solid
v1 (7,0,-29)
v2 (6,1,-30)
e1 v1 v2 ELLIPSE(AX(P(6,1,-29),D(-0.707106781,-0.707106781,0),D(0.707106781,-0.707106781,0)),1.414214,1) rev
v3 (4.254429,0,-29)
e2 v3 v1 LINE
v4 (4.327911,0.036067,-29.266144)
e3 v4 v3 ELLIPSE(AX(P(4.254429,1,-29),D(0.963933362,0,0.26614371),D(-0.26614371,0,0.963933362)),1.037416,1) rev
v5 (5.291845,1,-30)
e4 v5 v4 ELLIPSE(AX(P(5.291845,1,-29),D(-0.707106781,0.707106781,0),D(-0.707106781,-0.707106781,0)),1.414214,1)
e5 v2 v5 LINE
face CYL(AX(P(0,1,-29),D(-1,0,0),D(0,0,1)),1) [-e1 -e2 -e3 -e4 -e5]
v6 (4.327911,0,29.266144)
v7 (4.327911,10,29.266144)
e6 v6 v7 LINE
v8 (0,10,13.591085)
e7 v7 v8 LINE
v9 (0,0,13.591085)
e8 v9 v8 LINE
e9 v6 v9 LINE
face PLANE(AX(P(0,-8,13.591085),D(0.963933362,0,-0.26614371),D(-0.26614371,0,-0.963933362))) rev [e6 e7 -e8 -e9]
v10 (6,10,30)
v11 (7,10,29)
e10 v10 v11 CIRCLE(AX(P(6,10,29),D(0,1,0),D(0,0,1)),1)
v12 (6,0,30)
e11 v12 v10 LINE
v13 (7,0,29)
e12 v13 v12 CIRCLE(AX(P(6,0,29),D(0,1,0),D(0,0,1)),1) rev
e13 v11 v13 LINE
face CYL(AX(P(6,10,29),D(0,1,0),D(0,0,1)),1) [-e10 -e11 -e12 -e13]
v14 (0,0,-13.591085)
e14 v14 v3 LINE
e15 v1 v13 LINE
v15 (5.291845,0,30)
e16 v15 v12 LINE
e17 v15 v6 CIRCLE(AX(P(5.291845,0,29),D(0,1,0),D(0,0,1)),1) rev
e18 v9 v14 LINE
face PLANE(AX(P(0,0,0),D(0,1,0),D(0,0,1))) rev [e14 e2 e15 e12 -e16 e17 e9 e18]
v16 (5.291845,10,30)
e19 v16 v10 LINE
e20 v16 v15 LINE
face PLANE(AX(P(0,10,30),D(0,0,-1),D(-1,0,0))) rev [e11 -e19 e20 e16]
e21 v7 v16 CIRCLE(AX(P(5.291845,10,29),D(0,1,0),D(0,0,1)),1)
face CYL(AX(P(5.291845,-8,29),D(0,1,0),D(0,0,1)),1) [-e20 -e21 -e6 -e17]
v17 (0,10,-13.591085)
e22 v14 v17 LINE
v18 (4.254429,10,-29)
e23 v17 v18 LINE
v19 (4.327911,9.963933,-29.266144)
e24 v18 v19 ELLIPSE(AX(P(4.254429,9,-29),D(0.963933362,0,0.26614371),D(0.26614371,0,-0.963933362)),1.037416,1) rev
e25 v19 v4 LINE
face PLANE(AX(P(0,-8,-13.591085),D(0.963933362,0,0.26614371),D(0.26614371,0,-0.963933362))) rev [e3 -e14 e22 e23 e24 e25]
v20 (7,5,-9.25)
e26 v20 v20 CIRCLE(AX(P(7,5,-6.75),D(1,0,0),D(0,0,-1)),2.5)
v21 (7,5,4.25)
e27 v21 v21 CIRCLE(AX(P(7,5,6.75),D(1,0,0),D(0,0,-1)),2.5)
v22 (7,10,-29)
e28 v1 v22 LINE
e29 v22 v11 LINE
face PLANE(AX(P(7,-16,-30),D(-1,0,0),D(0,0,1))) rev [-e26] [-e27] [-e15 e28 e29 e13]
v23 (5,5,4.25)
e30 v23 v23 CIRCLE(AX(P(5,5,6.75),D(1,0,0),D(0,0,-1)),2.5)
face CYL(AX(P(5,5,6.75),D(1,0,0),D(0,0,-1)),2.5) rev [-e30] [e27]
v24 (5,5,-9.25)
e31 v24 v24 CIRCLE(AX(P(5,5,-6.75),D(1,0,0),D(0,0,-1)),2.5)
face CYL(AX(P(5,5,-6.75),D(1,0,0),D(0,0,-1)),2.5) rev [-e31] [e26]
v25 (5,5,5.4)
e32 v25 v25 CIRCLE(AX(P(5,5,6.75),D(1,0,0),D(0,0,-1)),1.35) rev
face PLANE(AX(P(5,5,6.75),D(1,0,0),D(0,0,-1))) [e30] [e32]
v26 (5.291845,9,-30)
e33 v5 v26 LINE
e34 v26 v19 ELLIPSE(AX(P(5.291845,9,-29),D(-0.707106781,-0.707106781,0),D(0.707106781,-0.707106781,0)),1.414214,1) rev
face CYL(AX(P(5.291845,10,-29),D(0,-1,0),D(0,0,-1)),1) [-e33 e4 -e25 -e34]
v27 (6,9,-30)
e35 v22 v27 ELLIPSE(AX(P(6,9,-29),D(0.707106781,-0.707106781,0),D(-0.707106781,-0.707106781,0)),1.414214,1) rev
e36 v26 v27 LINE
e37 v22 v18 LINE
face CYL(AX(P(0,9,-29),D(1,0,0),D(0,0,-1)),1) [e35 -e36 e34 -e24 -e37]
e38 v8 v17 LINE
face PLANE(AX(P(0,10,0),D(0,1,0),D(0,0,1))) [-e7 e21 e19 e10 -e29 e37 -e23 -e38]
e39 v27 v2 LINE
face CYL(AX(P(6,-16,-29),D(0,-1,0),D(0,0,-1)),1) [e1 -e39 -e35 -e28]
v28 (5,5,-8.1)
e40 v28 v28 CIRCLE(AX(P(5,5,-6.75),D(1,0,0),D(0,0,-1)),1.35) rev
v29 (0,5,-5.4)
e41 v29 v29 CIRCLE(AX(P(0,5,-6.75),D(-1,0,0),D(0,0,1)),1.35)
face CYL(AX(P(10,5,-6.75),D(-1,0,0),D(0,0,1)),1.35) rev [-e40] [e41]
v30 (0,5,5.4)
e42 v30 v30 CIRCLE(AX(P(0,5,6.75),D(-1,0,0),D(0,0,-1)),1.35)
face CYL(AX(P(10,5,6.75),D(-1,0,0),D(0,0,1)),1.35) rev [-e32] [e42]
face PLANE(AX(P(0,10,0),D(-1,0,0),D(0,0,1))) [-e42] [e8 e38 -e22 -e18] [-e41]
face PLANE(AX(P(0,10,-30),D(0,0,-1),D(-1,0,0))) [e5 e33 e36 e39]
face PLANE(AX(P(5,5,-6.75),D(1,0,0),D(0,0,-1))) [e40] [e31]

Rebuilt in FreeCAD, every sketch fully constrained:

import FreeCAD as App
import Part
import Sketcher

V = App.Vector


def edges_at(feature, points):
    """Names of the edges that pass closest to the given points."""
    edges = feature.Shape.Edges
    near = lambda p: min(range(len(edges)), key=lambda i: edges[i].distToShape(Part.Vertex(*p))[0])
    return sorted({f"Edge{near(p) + 1}" for p in points})

doc = App.newDocument("Part")
params = doc.addObject("Spreadsheet::Sheet", "Params")
for row, (alias, value) in enumerate([
    ("sketch1_height", "60 mm"),
    ("pad1_length", "10 mm"),
    ("sketch2_diameter", "2.7 mm"),
    ("pocket1_length", "10 mm"),
    ("pocket2_length", "18 mm"),
    ("pocket3_length", "26 mm"),
    ("sketch5_height", "60 mm"),
    ("pocket4_length", "26 mm"),
    ("fillet_radius", "1 mm"),
    ("sketch6_diameter", "5 mm"),
    ("pocket5_length", "2 mm"),
], start=1):
    params.set(f"A{row}", alias)
    params.set(f"B{row}", "=" + value)
    params.setAlias(f"B{row}", alias)

body = doc.addObject("PartDesign::Body", "Body")

# Sketch on XZ plane
sketch1 = body.newObject("Sketcher::SketchObject", "Sketch")
sketch1.AttachmentSupport = (doc.getObject("XZ_Plane"), [""])
sketch1.MapMode = "FlatFace"
sketch1.addGeometry(Part.LineSegment(V(0, -30, 0), V(0, 30, 0)), False)
sketch1.addGeometry(Part.LineSegment(V(0, 30, 0), V(34, 30, 0)), False)
sketch1.addGeometry(Part.LineSegment(V(34, 30, 0), V(34, -30, 0)), False)
sketch1.addGeometry(Part.LineSegment(V(34, -30, 0), V(0, -30, 0)), False)
sketch1.addConstraint(Sketcher.Constraint("Coincident", 0, 2, 1, 1))
sketch1.addConstraint(Sketcher.Constraint("Coincident", 1, 2, 2, 1))
sketch1.addConstraint(Sketcher.Constraint("Coincident", 2, 2, 3, 1))
sketch1.addConstraint(Sketcher.Constraint("Coincident", 3, 2, 0, 1))
sketch1.addConstraint(Sketcher.Constraint("Vertical", 0))
sketch1.addConstraint(Sketcher.Constraint("Horizontal", 1))
sketch1.addConstraint(Sketcher.Constraint("Vertical", 2))
sketch1.addConstraint(Sketcher.Constraint("Horizontal", 3))
sketch1.addConstraint(Sketcher.Constraint("Symmetric", 0, 2, 3, 2, -1, 1))
sketch1.addConstraint(Sketcher.Constraint("DistanceY", 0, 1, 0, 2, 60.0))
sketch1.addConstraint(Sketcher.Constraint("DistanceX", 1, 1, 1, 2, 33.537053))
sketch1.setExpression("Constraints[9]", "Params.sketch1_height")
pad1 = body.newObject("PartDesign::Pad", "Pad")
pad1.Profile = sketch1
pad1.setExpression("Length", "Params.pad1_length")
pad1.Reversed = True

# Sketch on YZ plane
sketch2 = body.newObject("Sketcher::SketchObject", "Sketch001")
sketch2.AttachmentSupport = (doc.getObject("YZ_Plane"), [""])
sketch2.MapMode = "FlatFace"
sketch2.addGeometry(Part.Circle(V(5, -6.8, 0), V(0, 0, 1), 1.4), False)
sketch2.addGeometry(Part.Circle(V(5, 6.8, 0), V(0, 0, 1), 1.4), False)
sketch2.addConstraint(Sketcher.Constraint("Equal", 0, 1))
sketch2.addConstraint(Sketcher.Constraint("Symmetric", 0, 3, 1, 3, -1))
sketch2.addConstraint(Sketcher.Constraint("Diameter", 0, 2.7))
sketch2.addConstraint(Sketcher.Constraint("DistanceX", -1, 1, 0, 3, 5.0))
sketch2.addConstraint(Sketcher.Constraint("DistanceY", 0, 3, 1, 3, 13.5))
sketch2.setExpression("Constraints[2]", "Params.sketch2_diameter")
pocket1 = body.newObject("PartDesign::Pocket", "Pocket")
pocket1.Profile = sketch2
pocket1.setExpression("Length", "Params.pocket1_length")
pocket1.Reversed = True

# Sketch on XZ plane
sketch3 = body.newObject("Sketcher::SketchObject", "Sketch002")
sketch3.AttachmentSupport = (doc.getObject("XZ_Plane"), [""])
sketch3.MapMode = "FlatFace"
sketch3.AttachmentOffset = App.Placement(V(0, 0, -10), App.Rotation())
sketch3.addGeometry(Part.LineSegment(V(0, -13.6, 0), V(4.5, -30, 0)), False)
sketch3.addGeometry(Part.LineSegment(V(4.5, -30, 0), V(0, -30, 0)), False)
sketch3.addGeometry(Part.LineSegment(V(0, -30, 0), V(0, -13.6, 0)), False)
sketch3.addGeometry(Part.LineSegment(V(0, 30, 0), V(4.5, 30, 0)), False)
sketch3.addGeometry(Part.LineSegment(V(4.5, 30, 0), V(0, 13.6, 0)), False)
sketch3.addGeometry(Part.LineSegment(V(0, 13.6, 0), V(0, 30, 0)), False)
sketch3.addConstraint(Sketcher.Constraint("Coincident", 0, 2, 1, 1))
sketch3.addConstraint(Sketcher.Constraint("Coincident", 1, 2, 2, 1))
sketch3.addConstraint(Sketcher.Constraint("Coincident", 2, 2, 0, 1))
sketch3.addConstraint(Sketcher.Constraint("Coincident", 3, 2, 4, 1))
sketch3.addConstraint(Sketcher.Constraint("Coincident", 4, 2, 5, 1))
sketch3.addConstraint(Sketcher.Constraint("Coincident", 5, 2, 3, 1))
sketch3.addConstraint(Sketcher.Constraint("Horizontal", 1))
sketch3.addConstraint(Sketcher.Constraint("Vertical", 2))
sketch3.addConstraint(Sketcher.Constraint("Horizontal", 3))
sketch3.addConstraint(Sketcher.Constraint("Vertical", 5))
sketch3.addConstraint(Sketcher.Constraint("Symmetric", 2, 2, 4, 2, -1, 1))
sketch3.addConstraint(Sketcher.Constraint("Symmetric", 0, 2, 3, 2, -1))
sketch3.addConstraint(Sketcher.Constraint("PointOnObject", 1, 2, -2))
sketch3.addConstraint(Sketcher.Constraint("DistanceY", 0, 2, -1, 1, 30.0))
sketch3.addConstraint(Sketcher.Constraint("DistanceX", 1, 2, 1, 1, 4.53053))
sketch3.addConstraint(Sketcher.Constraint("DistanceY", 2, 1, 2, 2, 16.408915))
pocket2 = body.newObject("PartDesign::Pocket", "Pocket001")
pocket2.Profile = sketch3
pocket2.setExpression("Length", "Params.pocket2_length")
pocket2.Reversed = True

# Sketch on XZ plane
sketch4 = body.newObject("Sketcher::SketchObject", "Sketch003")
sketch4.AttachmentSupport = (doc.getObject("XZ_Plane"), [""])
sketch4.MapMode = "FlatFace"
sketch4.AttachmentOffset = App.Placement(V(0, 0, -10), App.Rotation())
sketch4.addGeometry(Part.LineSegment(V(13, -31, 0), V(13, 33, 0)), False)
sketch4.addGeometry(Part.LineSegment(V(13, 33, 0), V(34, 33, 0)), False)
sketch4.addGeometry(Part.LineSegment(V(34, 33, 0), V(34, -31, 0)), False)
sketch4.addGeometry(Part.LineSegment(V(34, -31, 0), V(13, -31, 0)), False)
sketch4.addConstraint(Sketcher.Constraint("Coincident", 0, 2, 1, 1))
sketch4.addConstraint(Sketcher.Constraint("Coincident", 1, 2, 2, 1))
sketch4.addConstraint(Sketcher.Constraint("Coincident", 2, 2, 3, 1))
sketch4.addConstraint(Sketcher.Constraint("Coincident", 3, 2, 0, 1))
sketch4.addConstraint(Sketcher.Constraint("Vertical", 0))
sketch4.addConstraint(Sketcher.Constraint("Horizontal", 1))
sketch4.addConstraint(Sketcher.Constraint("Vertical", 2))
sketch4.addConstraint(Sketcher.Constraint("Horizontal", 3))
sketch4.addConstraint(Sketcher.Constraint("DistanceX", 1, 1, 1, 2, 20.892081))
sketch4.addConstraint(Sketcher.Constraint("DistanceX", -1, 1, 1, 2, 34.092899))
sketch4.addConstraint(Sketcher.Constraint("DistanceY", 0, 1, 0, 2, 64.192604))
sketch4.addConstraint(Sketcher.Constraint("DistanceY", -1, 1, 0, 2, 33.022967))
pocket3 = body.newObject("PartDesign::Pocket", "Pocket002")
pocket3.Profile = sketch4
pocket3.setExpression("Length", "Params.pocket3_length")
pocket3.Reversed = True

# Sketch on XZ plane
sketch5 = body.newObject("Sketcher::SketchObject", "Sketch004")
sketch5.AttachmentSupport = (doc.getObject("XZ_Plane"), [""])
sketch5.MapMode = "FlatFace"
sketch5.AttachmentOffset = App.Placement(V(0, 0, -10), App.Rotation())
sketch5.addGeometry(Part.LineSegment(V(7, -30, 0), V(7, 30, 0)), False)
sketch5.addGeometry(Part.LineSegment(V(7, 30, 0), V(13, 30, 0)), False)
sketch5.addGeometry(Part.LineSegment(V(13, 30, 0), V(13, -30, 0)), False)
sketch5.addGeometry(Part.LineSegment(V(13, -30, 0), V(7, -30, 0)), False)
sketch5.addConstraint(Sketcher.Constraint("Coincident", 0, 2, 1, 1))
sketch5.addConstraint(Sketcher.Constraint("Coincident", 1, 2, 2, 1))
sketch5.addConstraint(Sketcher.Constraint("Coincident", 2, 2, 3, 1))
sketch5.addConstraint(Sketcher.Constraint("Coincident", 3, 2, 0, 1))
sketch5.addConstraint(Sketcher.Constraint("Vertical", 0))
sketch5.addConstraint(Sketcher.Constraint("Horizontal", 1))
sketch5.addConstraint(Sketcher.Constraint("Vertical", 2))
sketch5.addConstraint(Sketcher.Constraint("Horizontal", 3))
sketch5.addConstraint(Sketcher.Constraint("DistanceY", 0, 1, 0, 2, 60.0))
sketch5.addConstraint(Sketcher.Constraint("DistanceX", -1, 1, 0, 2, 7.0))
sketch5.addConstraint(Sketcher.Constraint("DistanceY", -1, 1, 0, 2, 30.0))
sketch5.addConstraint(Sketcher.Constraint("DistanceX", 1, 1, 1, 2, 6.200817))
sketch5.setExpression("Constraints[8]", "Params.sketch5_height")
pocket4 = body.newObject("PartDesign::Pocket", "Pocket003")
pocket4.Profile = sketch5
pocket4.setExpression("Length", "Params.pocket4_length")
pocket4.Reversed = True
doc.recompute()

fillet = body.newObject("PartDesign::Fillet", "Fillet")
fillet.Base = (pocket4, edges_at(pocket4, [
    (5.765, 0, -30),
    (5.765, 10, -30),
    (4.531, 5, -30),
    (4.531, 5, 30),
    (7, 5, 30),
    (7, 5, -30),
]))
fillet.setExpression("Radius", "Params.fillet_radius")

# Sketch on YZ plane
sketch6 = body.newObject("Sketcher::SketchObject", "Sketch005")
sketch6.AttachmentSupport = (doc.getObject("YZ_Plane"), [""])
sketch6.MapMode = "FlatFace"
sketch6.AttachmentOffset = App.Placement(V(0, 0, 7), App.Rotation())
sketch6.addGeometry(Part.Circle(V(5, 6.8, 0), V(0, 0, 1), 2.5), False)
sketch6.addGeometry(Part.Circle(V(5, -6.8, 0), V(0, 0, 1), 2.5), False)
sketch6.addConstraint(Sketcher.Constraint("Equal", 0, 1))
sketch6.addConstraint(Sketcher.Constraint("Symmetric", 0, 3, 1, 3, -1))
sketch6.addConstraint(Sketcher.Constraint("Diameter", 0, 5.0))
sketch6.addConstraint(Sketcher.Constraint("DistanceX", -1, 1, 0, 3, 5.0))
sketch6.addConstraint(Sketcher.Constraint("DistanceY", 1, 3, 0, 3, 13.5))
sketch6.setExpression("Constraints[2]", "Params.sketch6_diameter")
pocket5 = body.newObject("PartDesign::Pocket", "Pocket004")
pocket5.Profile = sketch6
pocket5.setExpression("Length", "Params.pocket5_length")

doc.recompute()
